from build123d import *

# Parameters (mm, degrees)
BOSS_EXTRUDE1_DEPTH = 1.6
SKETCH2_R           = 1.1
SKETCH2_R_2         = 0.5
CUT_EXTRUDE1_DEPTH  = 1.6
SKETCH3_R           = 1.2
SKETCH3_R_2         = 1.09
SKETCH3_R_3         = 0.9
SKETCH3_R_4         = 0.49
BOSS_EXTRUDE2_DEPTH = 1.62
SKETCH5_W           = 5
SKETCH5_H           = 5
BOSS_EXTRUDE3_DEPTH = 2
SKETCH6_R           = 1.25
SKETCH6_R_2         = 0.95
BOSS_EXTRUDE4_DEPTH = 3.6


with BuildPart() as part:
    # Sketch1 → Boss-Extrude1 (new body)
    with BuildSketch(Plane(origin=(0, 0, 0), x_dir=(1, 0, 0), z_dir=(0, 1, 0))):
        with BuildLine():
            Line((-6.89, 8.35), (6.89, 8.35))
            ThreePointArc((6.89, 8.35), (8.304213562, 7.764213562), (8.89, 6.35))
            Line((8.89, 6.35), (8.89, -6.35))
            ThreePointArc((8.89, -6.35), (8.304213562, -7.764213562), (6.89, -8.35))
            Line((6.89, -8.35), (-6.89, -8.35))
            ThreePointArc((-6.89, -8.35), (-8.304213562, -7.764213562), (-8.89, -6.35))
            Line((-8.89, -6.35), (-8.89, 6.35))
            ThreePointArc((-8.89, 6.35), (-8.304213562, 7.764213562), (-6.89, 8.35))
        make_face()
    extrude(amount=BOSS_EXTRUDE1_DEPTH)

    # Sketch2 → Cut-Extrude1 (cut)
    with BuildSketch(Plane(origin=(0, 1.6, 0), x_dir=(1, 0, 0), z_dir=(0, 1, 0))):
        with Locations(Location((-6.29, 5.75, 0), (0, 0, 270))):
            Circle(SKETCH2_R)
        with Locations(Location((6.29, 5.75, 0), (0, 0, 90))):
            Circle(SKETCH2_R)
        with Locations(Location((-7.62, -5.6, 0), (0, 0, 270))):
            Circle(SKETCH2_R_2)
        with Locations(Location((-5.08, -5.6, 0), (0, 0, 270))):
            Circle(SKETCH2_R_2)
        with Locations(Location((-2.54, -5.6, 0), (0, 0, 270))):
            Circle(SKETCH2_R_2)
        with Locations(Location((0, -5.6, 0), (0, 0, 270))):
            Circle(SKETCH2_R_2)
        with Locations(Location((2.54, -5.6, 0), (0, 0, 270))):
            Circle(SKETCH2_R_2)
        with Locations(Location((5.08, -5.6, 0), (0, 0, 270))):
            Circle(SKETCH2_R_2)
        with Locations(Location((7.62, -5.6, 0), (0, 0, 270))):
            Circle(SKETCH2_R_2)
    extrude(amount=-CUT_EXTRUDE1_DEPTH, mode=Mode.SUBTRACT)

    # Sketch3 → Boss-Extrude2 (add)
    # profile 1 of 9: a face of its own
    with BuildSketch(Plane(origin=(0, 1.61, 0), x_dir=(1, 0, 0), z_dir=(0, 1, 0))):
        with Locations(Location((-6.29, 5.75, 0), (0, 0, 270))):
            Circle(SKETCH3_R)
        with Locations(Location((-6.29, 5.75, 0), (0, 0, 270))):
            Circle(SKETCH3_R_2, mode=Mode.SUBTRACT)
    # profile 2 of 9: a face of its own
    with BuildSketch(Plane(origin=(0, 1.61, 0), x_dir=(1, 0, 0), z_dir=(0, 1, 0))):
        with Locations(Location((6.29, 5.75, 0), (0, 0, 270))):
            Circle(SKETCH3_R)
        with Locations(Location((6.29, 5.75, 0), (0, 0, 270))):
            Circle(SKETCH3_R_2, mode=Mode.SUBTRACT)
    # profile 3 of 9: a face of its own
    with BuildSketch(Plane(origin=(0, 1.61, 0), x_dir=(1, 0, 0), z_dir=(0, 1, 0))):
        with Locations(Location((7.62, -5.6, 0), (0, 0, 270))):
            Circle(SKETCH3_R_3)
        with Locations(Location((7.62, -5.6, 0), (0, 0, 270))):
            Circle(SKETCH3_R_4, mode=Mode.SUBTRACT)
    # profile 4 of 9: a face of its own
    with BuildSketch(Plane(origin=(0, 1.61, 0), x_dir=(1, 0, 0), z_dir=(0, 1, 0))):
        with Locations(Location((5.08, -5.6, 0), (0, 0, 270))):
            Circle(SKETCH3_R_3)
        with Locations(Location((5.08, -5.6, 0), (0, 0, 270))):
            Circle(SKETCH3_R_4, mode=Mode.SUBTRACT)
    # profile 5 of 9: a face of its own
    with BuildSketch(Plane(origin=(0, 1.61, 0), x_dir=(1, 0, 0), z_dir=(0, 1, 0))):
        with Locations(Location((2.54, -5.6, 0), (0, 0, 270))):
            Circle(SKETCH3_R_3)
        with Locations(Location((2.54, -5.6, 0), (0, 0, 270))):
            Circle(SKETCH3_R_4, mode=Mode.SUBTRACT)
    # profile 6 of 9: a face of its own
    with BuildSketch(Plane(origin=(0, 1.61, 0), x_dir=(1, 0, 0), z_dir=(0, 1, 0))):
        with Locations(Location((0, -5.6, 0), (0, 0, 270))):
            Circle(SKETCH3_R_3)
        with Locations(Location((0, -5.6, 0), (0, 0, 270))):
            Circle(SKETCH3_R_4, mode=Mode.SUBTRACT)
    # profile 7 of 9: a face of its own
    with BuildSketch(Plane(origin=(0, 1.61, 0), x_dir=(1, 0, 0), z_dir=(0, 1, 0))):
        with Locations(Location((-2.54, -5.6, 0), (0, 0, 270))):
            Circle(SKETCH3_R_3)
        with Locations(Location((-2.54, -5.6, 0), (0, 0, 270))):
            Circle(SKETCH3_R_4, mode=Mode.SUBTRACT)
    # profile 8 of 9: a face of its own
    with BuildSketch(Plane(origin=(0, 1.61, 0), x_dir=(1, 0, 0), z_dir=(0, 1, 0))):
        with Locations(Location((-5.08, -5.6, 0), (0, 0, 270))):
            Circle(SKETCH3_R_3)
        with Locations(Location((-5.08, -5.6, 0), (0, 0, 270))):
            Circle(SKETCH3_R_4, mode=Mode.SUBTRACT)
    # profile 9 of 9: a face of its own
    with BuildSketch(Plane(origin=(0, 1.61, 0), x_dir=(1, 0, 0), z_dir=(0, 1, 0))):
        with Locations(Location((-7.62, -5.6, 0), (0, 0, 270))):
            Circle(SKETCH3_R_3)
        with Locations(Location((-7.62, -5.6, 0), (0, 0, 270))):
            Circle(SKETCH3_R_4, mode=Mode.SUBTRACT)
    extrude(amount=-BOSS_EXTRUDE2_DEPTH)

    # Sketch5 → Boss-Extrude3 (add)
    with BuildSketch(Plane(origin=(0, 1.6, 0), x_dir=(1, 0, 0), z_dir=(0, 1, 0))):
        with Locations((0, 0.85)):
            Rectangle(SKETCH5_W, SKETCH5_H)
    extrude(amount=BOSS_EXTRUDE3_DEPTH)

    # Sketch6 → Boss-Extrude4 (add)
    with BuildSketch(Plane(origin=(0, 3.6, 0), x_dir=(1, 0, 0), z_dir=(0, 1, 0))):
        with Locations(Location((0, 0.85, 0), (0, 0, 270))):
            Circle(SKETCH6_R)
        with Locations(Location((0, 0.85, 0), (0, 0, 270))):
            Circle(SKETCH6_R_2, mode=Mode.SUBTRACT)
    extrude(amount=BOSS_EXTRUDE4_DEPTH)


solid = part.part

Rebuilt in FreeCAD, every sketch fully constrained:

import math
import FreeCAD as App
import Part
import Sketcher
from FreeCAD import Vector
Q = App.Units.Quantity


def add_polygon(sketch, points):
    """Adds a closed chain of lines whose ends are joined by coincident constraints."""
    first, n = sketch.GeometryCount, len(points)
    for a, b in zip(points, points[1:] + points[:1]):
        sketch.addGeometry(Part.LineSegment(App.Vector(*a, 0), App.Vector(*b, 0)), False)
    for i in range(n):
        sketch.addConstraint(Sketcher.Constraint("Coincident", first + i, 2, first + (i + 1) % n, 1))

doc = App.newDocument("Part")
params = doc.addObject("Spreadsheet::Sheet", "Params")
for row, (alias, value) in enumerate([
    ("sketch1_radius", "2 mm"),
    ("sketch1_height", "12.7 mm"),
    ("sketch1_width", "13.78 mm"),
    ("pad1_length", "1.6 mm"),
    ("sketch2_diameter", "1 mm"),
    ("sketch2_diameter2", "2.2 mm"),
    ("pocket1_length", "1.6 mm"),
    ("sketch3_diameter", "2.4 mm"),
    ("sketch3_diameter2", "1.8 mm"),
    ("sketch3_diameter3", "2.18 mm"),
    ("sketch3_diameter4", "0.98 mm"),
    ("pad2_length", "1.62 mm"),
    ("sketch4_width", "5 mm"),
    ("pad3_length", "2 mm"),
    ("sketch5_diameter", "2.5 mm"),
    ("sketch5_diameter2", "1.9 mm"),
    ("pad4_length", "3.6 mm"),
], start=1):
    params.set(f"A{row}", alias)
    params.set(f"B{row}", "=" + value)
    params.setAlias(f"B{row}", alias)

body = doc.addObject("PartDesign::Body", "Body")

# Sketch on XZ plane
sketch1 = doc.addObject("Sketcher::SketchObject", "Sketch")
body.addObject(sketch1)
sketch1.AttachmentSupport = (doc.XZ_Plane, [""])
sketch1.MapMode = "FlatFace"
sketch1.addGeometry([
    Part.LineSegment(Vector(6.89, -8.35, 0), Vector(-6.89, -8.35, 0)),  # 0
    Part.ArcOfCircle(Part.Circle(Vector(-6.89, -6.35, 0), Vector(0, 0, 1), 2), math.radians(-180), math.radians(-90)),  # 1
    Part.LineSegment(Vector(-8.89, -6.35, 0), Vector(-8.89, 6.35, 0)),  # 2
    Part.ArcOfCircle(Part.Circle(Vector(-6.89, 6.35, 0), Vector(0, 0, 1), 2), math.radians(90), math.radians(180)),  # 3
    Part.LineSegment(Vector(-6.89, 8.35, 0), Vector(6.89, 8.35, 0)),  # 4
    Part.ArcOfCircle(Part.Circle(Vector(6.89, 6.35, 0), Vector(0, 0, 1), 2), math.radians(0), math.radians(90)),  # 5
    Part.LineSegment(Vector(8.89, 6.35, 0), Vector(8.89, -6.35, 0)),  # 6
    Part.ArcOfCircle(Part.Circle(Vector(6.89, -6.35, 0), Vector(0, 0, 1), 2), math.radians(-90), math.radians(0)),  # 7
], False)
sketch1.addConstraint([
    Sketcher.Constraint("Tangent", 0, 2, 1, 2),
    Sketcher.Constraint("Tangent", 1, 1, 2, 1),
    Sketcher.Constraint("Tangent", 2, 2, 3, 2),
    Sketcher.Constraint("Tangent", 3, 1, 4, 1),
    Sketcher.Constraint("Tangent", 4, 2, 5, 2),
    Sketcher.Constraint("Tangent", 5, 1, 6, 1),
    Sketcher.Constraint("Tangent", 6, 2, 7, 2),
    Sketcher.Constraint("Tangent", 7, 1, 0, 1),
    Sketcher.Constraint("Horizontal", 0),
    Sketcher.Constraint("Vertical", 2),
    Sketcher.Constraint("Horizontal", 4),
    Sketcher.Constraint("Vertical", 6),
    Sketcher.Constraint("Equal", 1, 3),
    Sketcher.Constraint("Equal", 3, 5),
    Sketcher.Constraint("Equal", 5, 7),
    Sketcher.Constraint("Symmetric", 1, 3, 5, 3, -1, 1),
    Sketcher.Constraint("Radius", 1, Q("2 mm")),
    Sketcher.Constraint("DistanceY", 2, 1, 2, 2, Q("12.7 mm")),
    Sketcher.Constraint("DistanceX", 0, 2, 0, 1, Q("13.78 mm")),
])
sketch1.setExpression("Constraints[16]", "Params.sketch1_radius")
sketch1.setExpression("Constraints[17]", "Params.sketch1_height")
sketch1.setExpression("Constraints[18]", "Params.sketch1_width")
pad1 = doc.addObject("PartDesign::Pad", "Pad")
body.addObject(pad1)
pad1.Profile = sketch1
pad1.setExpression("Length", "Params.pad1_length")
pad1.Reversed = True

# Sketch on XZ plane
sketch2 = doc.addObject("Sketcher::SketchObject", "Sketch001")
body.addObject(sketch2)
sketch2.AttachmentSupport = (doc.XZ_Plane, [""])
sketch2.MapMode = "FlatFace"
sketch2.AttachmentOffset = App.Placement(Vector(0, 0, -1.6), App.Rotation())
sketch2.addGeometry([
    Part.Circle(Vector(-6.29, -5.75, 0), Vector(0, 0, 1), 1.1),  # 0
    Part.Circle(Vector(6.29, -5.75, 0), Vector(0, 0, 1), 1.1),  # 1
    Part.Circle(Vector(-7.62, 5.6, 0), Vector(0, 0, 1), 0.5),  # 2
    Part.Circle(Vector(-5.08, 5.6, 0), Vector(0, 0, 1), 0.5),  # 3
    Part.Circle(Vector(-2.54, 5.6, 0), Vector(0, 0, 1), 0.5),  # 4
    Part.Circle(Vector(0, 5.6, 0), Vector(0, 0, 1), 0.5),  # 5
    Part.Circle(Vector(2.54, 5.6, 0), Vector(0, 0, 1), 0.5),  # 6
    Part.Circle(Vector(5.08, 5.6, 0), Vector(0, 0, 1), 0.5),  # 7
    Part.Circle(Vector(7.62, 5.6, 0), Vector(0, 0, 1), 0.5),  # 8
], False)
sketch2.addConstraint([
    Sketcher.Constraint("Equal", 0, 1),
    Sketcher.Constraint("Equal", 2, 3),
    Sketcher.Constraint("Equal", 3, 4),
    Sketcher.Constraint("Equal", 4, 5),
    Sketcher.Constraint("Equal", 5, 6),
    Sketcher.Constraint("Equal", 6, 7),
    Sketcher.Constraint("Equal", 7, 8),
    Sketcher.Constraint("Symmetric", 0, 3, 1, 3, -2),
    Sketcher.Constraint("Symmetric", 4, 3, 6, 3, -2),
    Sketcher.Constraint("Symmetric", 3, 3, 7, 3, -2),
    Sketcher.Constraint("Symmetric", 2, 3, 8, 3, -2),
    Sketcher.Constraint("PointOnObject", 5, 3, -2),
    Sketcher.Constraint("Horizontal", 2, 3, 3, 3),
    Sketcher.Constraint("Horizontal", 3, 3, 4, 3),
    Sketcher.Constraint("Horizontal", 4, 3, 5, 3),
    Sketcher.Constraint("Diameter", 2, Q("1 mm")),
    Sketcher.Constraint("Diameter", 0, Q("2.2 mm")),
    Sketcher.Constraint("DistanceY", -1, 1, 2, 3, Q("5.6 mm")),
    Sketcher.Constraint("DistanceX", 0, 3, -1, 1, Q("6.29 mm")),
    Sketcher.Constraint("DistanceY", 0, 3, -1, 1, Q("5.75 mm")),
    Sketcher.Constraint("DistanceX", 2, 3, -1, 1, Q("7.62 mm")),
    Sketcher.Constraint("DistanceX", 3, 3, -1, 1, Q("5.08 mm")),
    Sketcher.Constraint("DistanceX", 4, 3, -1, 1, Q("2.54 mm")),
])
sketch2.setExpression("Constraints[15]", "Params.sketch2_diameter")
sketch2.setExpression("Constraints[16]", "Params.sketch2_diameter2")
pocket1 = doc.addObject("PartDesign::Pocket", "Pocket")
body.addObject(pocket1)
pocket1.Profile = sketch2
pocket1.setExpression("Length", "Params.pocket1_length")
pocket1.Reversed = True

# Sketch on XZ plane
sketch3 = doc.addObject("Sketcher::SketchObject", "Sketch002")
body.addObject(sketch3)
sketch3.AttachmentSupport = (doc.XZ_Plane, [""])
sketch3.MapMode = "FlatFace"
sketch3.AttachmentOffset = App.Placement(Vector(0, 0, -1.61), App.Rotation())
sketch3.addGeometry([
    Part.Circle(Vector(-6.29, -5.75, 0), Vector(0, 0, 1), 1.2),  # 0
    Part.Circle(Vector(-6.29, -5.75, 0), Vector(0, 0, 1), 1.09),  # 1
    Part.Circle(Vector(6.29, -5.75, 0), Vector(0, 0, 1), 1.2),  # 2
    Part.Circle(Vector(6.29, -5.75, 0), Vector(0, 0, 1), 1.09),  # 3
    Part.Circle(Vector(7.62, 5.6, 0), Vector(0, 0, 1), 0.9),  # 4
    Part.Circle(Vector(7.62, 5.6, 0), Vector(0, 0, 1), 0.49),  # 5
    Part.Circle(Vector(5.08, 5.6, 0), Vector(0, 0, 1), 0.9),  # 6
    Part.Circle(Vector(5.08, 5.6, 0), Vector(0, 0, 1), 0.49),  # 7
    Part.Circle(Vector(2.54, 5.6, 0), Vector(0, 0, 1), 0.9),  # 8
    Part.Circle(Vector(2.54, 5.6, 0), Vector(0, 0, 1), 0.49),  # 9
    Part.Circle(Vector(0, 5.6, 0), Vector(0, 0, 1), 0.9),  # 10
    Part.Circle(Vector(0, 5.6, 0), Vector(0, 0, 1), 0.49),  # 11
    Part.Circle(Vector(-2.54, 5.6, 0), Vector(0, 0, 1), 0.9),  # 12
    Part.Circle(Vector(-2.54, 5.6, 0), Vector(0, 0, 1), 0.49),  # 13
    Part.Circle(Vector(-5.08, 5.6, 0), Vector(0, 0, 1), 0.9),  # 14
    Part.Circle(Vector(-5.08, 5.6, 0), Vector(0, 0, 1), 0.49),  # 15
    Part.Circle(Vector(-7.62, 5.6, 0), Vector(0, 0, 1), 0.9),  # 16
    Part.Circle(Vector(-7.62, 5.6, 0), Vector(0, 0, 1), 0.49),  # 17
], False)
sketch3.addConstraint([
    Sketcher.Constraint("Coincident", 1, 3, 0, 3),
    Sketcher.Constraint("Coincident", 3, 3, 2, 3),
    Sketcher.Constraint("Coincident", 5, 3, 4, 3),
    Sketcher.Constraint("Coincident", 7, 3, 6, 3),
    Sketcher.Constraint("Coincident", 9, 3, 8, 3),
    Sketcher.Constraint("Coincident", 11, 3, 10, 3),
    Sketcher.Constraint("Coincident", 13, 3, 12, 3),
    Sketcher.Constraint("Coincident", 15, 3, 14, 3),
    Sketcher.Constraint("Coincident", 17, 3, 16, 3),
    Sketcher.Constraint("Equal", 0, 2),
    Sketcher.Constraint("Equal", 1, 3),
    Sketcher.Constraint("Equal", 4, 6),
    Sketcher.Constraint("Equal", 5, 7),
    Sketcher.Constraint("Equal", 6, 8),
    Sketcher.Constraint("Equal", 7, 9),
    Sketcher.Constraint("Equal", 8, 10),
    Sketcher.Constraint("Equal", 9, 11),
    Sketcher.Constraint("Equal", 10, 12),
    Sketcher.Constraint("Equal", 11, 13),
    Sketcher.Constraint("Equal", 12, 14),
    Sketcher.Constraint("Equal", 13, 15),
    Sketcher.Constraint("Equal", 14, 16),
    Sketcher.Constraint("Equal", 15, 17),
    Sketcher.Constraint("Symmetric", 0, 3, 2, 3, -2),
    Sketcher.Constraint("Symmetric", 8, 3, 12, 3, -2),
    Sketcher.Constraint("Symmetric", 6, 3, 14, 3, -2),
    Sketcher.Constraint("Symmetric", 4, 3, 16, 3, -2),
    Sketcher.Constraint("PointOnObject", 10, 3, -2),
    Sketcher.Constraint("Horizontal", 5, 3, 6, 3),
    Sketcher.Constraint("Horizontal", 7, 3, 8, 3),
    Sketcher.Constraint("Horizontal", 9, 3, 10, 3),
    Sketcher.Constraint("Diameter", 0, Q("2.4 mm")),
    Sketcher.Constraint("Diameter", 4, Q("1.8 mm")),
    Sketcher.Constraint("Diameter", 1, Q("2.18 mm")),
    Sketcher.Constraint("Diameter", 5, Q("0.98 mm")),
    Sketcher.Constraint("DistanceY", -1, 1, 4, 3, Q("5.6 mm")),
    Sketcher.Constraint("DistanceX", 0, 3, -1, 1, Q("6.29 mm")),
    Sketcher.Constraint("DistanceY", 0, 3, -1, 1, Q("5.75 mm")),
    Sketcher.Constraint("DistanceX", -1, 1, 4, 3, Q("7.62 mm")),
    Sketcher.Constraint("DistanceX", -1, 1, 6, 3, Q("5.08 mm")),
    Sketcher.Constraint("DistanceX", -1, 1, 8, 3, Q("2.54 mm")),
])
sketch3.setExpression("Constraints[31]", "Params.sketch3_diameter")
sketch3.setExpression("Constraints[32]", "Params.sketch3_diameter2")
sketch3.setExpression("Constraints[33]", "Params.sketch3_diameter3")
sketch3.setExpression("Constraints[34]", "Params.sketch3_diameter4")
pad2 = doc.addObject("PartDesign::Pad", "Pad001")
body.addObject(pad2)
pad2.Profile = sketch3
pad2.setExpression("Length", "Params.pad2_length")

# Sketch on XZ plane
sketch4 = doc.addObject("Sketcher::SketchObject", "Sketch003")
body.addObject(sketch4)
sketch4.AttachmentSupport = (doc.XZ_Plane, [""])
sketch4.MapMode = "FlatFace"
sketch4.AttachmentOffset = App.Placement(Vector(0, 0, -1.6), App.Rotation())
add_polygon(sketch4, [(-2.5, -3.35), (-2.5, 1.65), (2.5, 1.65), (2.5, -3.35)])  # lines 0-3
sketch4.addConstraint([
    Sketcher.Constraint("Vertical", 0),
    Sketcher.Constraint("Horizontal", 1),
    Sketcher.Constraint("Vertical", 2),
    Sketcher.Constraint("Horizontal", 3),
    Sketcher.Constraint("Equal", 3, 0),
    Sketcher.Constraint("DistanceX", 1, 1, 1, 2, Q("5 mm")),
    Sketcher.Constraint("DistanceX", 0, 2, -1, 1, Q("2.5 mm")),
    Sketcher.Constraint("DistanceY", -1, 1, 0, 2, Q("1.65 mm")),
])
sketch4.setExpression("Constraints[9]", "Params.sketch4_width")
pad3 = doc.addObject("PartDesign::Pad", "Pad002")
body.addObject(pad3)
pad3.Profile = sketch4
pad3.setExpression("Length", "Params.pad3_length")
pad3.Reversed = True

# Sketch on XZ plane
sketch5 = doc.addObject("Sketcher::SketchObject", "Sketch004")
body.addObject(sketch5)
sketch5.AttachmentSupport = (doc.XZ_Plane, [""])
sketch5.MapMode = "FlatFace"
sketch5.AttachmentOffset = App.Placement(Vector(0, 0, -3.6), App.Rotation())
sketch5.addGeometry([
    Part.Circle(Vector(0, -0.85, 0), Vector(0, 0, 1), 1.25),
    Part.Circle(Vector(0, -0.85, 0), Vector(0, 0, 1), 0.95),
], False)
sketch5.addConstraint([
    Sketcher.Constraint("Coincident", 1, 3, 0, 3),
    Sketcher.Constraint("PointOnObject", 0, 3, -2),
    Sketcher.Constraint("Diameter", 0, Q("2.5 mm")),
    Sketcher.Constraint("Diameter", 1, Q("1.9 mm")),
    Sketcher.Constraint("DistanceY", 0, 3, -1, 1, Q("0.85 mm")),
])
sketch5.setExpression("Constraints[2]", "Params.sketch5_diameter")
sketch5.setExpression("Constraints[3]", "Params.sketch5_diameter2")
pad4 = doc.addObject("PartDesign::Pad", "Pad003")
body.addObject(pad4)
pad4.Profile = sketch5
pad4.setExpression("Length", "Params.pad4_length")
pad4.Reversed = True

doc.recompute()
